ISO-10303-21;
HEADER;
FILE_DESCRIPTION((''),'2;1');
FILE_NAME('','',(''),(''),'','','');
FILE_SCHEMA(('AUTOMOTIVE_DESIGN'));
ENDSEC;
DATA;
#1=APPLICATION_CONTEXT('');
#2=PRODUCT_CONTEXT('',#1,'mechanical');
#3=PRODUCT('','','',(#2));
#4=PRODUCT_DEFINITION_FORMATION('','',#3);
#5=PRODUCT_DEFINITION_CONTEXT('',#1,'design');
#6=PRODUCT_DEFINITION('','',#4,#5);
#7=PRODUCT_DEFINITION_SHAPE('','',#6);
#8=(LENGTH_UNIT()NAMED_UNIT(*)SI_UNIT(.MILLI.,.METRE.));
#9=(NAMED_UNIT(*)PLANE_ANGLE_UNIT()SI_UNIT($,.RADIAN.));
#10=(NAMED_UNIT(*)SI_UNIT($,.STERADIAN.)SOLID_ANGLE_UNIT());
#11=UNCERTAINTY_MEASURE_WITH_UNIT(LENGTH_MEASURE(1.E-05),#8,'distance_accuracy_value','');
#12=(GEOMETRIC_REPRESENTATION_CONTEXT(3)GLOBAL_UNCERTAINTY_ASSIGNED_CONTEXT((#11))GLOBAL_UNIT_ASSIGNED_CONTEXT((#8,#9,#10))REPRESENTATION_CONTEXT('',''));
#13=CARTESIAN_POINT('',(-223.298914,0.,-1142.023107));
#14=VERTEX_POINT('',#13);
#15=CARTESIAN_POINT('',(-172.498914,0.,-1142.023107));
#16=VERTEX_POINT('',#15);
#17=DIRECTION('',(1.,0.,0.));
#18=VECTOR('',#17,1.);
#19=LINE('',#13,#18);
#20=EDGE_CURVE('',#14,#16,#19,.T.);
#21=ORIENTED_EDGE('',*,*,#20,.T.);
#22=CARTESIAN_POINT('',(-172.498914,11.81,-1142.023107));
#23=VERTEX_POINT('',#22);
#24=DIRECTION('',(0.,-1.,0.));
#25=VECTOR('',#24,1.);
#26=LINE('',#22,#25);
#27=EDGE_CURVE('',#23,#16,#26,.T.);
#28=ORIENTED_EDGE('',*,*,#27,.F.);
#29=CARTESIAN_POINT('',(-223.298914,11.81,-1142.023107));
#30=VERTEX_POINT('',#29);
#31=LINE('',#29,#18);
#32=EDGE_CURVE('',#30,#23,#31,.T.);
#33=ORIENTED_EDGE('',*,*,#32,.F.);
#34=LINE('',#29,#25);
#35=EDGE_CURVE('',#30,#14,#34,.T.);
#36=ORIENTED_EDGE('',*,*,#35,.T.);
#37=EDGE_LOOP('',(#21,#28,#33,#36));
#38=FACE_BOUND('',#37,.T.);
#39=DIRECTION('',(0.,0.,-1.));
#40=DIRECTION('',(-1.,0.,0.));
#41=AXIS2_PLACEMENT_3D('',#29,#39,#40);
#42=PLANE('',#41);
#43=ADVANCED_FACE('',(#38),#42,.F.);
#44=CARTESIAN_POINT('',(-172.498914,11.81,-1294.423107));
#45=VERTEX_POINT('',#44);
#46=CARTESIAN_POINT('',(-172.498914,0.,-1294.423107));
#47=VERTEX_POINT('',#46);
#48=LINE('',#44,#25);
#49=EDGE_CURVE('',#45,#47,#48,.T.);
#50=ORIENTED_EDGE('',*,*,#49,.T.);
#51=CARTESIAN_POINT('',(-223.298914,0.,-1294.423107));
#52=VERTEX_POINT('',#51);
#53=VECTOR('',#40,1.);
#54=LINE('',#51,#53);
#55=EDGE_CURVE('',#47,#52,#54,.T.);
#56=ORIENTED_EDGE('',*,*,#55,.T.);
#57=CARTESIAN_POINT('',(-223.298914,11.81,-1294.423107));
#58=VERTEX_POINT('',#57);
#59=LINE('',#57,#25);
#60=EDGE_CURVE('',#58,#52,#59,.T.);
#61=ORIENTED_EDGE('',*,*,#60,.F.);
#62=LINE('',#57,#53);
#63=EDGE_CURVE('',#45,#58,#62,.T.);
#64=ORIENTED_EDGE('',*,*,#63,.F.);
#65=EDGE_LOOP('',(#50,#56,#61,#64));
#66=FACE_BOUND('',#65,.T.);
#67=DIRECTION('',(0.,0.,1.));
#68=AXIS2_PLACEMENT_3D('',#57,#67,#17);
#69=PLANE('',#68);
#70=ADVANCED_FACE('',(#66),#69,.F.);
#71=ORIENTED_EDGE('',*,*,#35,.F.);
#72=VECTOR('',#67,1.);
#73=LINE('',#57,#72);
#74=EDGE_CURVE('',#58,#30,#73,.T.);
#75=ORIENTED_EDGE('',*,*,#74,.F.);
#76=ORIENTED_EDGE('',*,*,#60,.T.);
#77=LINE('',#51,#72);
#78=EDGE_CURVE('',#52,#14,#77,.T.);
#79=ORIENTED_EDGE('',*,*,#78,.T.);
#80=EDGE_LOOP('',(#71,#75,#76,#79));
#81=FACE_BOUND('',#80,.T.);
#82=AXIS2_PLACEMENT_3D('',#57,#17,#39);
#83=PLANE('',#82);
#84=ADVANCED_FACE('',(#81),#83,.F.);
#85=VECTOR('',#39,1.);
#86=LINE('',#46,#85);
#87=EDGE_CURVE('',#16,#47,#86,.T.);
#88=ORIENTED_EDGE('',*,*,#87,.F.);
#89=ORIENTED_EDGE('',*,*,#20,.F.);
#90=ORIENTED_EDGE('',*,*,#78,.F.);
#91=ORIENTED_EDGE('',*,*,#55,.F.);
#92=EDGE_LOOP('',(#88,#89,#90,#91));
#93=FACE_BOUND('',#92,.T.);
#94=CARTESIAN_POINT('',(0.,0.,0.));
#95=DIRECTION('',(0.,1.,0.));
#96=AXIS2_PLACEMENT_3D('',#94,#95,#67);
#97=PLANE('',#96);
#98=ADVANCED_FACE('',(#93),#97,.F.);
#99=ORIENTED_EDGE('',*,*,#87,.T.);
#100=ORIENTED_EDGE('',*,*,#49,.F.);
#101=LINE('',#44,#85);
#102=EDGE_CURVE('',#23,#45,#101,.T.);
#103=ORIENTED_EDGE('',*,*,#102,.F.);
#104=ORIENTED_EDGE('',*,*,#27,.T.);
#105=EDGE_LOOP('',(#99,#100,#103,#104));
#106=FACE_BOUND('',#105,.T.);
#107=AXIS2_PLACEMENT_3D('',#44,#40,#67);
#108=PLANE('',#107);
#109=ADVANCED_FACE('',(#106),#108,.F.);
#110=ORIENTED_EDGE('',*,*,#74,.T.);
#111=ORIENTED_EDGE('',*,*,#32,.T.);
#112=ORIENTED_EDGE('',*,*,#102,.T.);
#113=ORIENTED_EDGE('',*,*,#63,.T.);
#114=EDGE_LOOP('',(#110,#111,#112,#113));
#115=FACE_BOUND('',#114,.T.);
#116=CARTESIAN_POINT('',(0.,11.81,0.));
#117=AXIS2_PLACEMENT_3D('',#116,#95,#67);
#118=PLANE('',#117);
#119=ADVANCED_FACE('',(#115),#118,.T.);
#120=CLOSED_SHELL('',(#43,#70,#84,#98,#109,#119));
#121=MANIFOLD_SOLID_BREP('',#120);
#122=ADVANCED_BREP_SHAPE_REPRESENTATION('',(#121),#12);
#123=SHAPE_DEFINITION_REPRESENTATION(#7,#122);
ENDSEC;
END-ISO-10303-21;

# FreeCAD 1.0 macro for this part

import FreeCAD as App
import Part
import Sketcher
Q = App.Units.Quantity


def add_polygon(sketch, points):
    """Adds a closed chain of lines whose ends are joined by coincident constraints."""
    first, n = sketch.GeometryCount, len(points)
    for a, b in zip(points, points[1:] + points[:1]):
        sketch.addGeometry(Part.LineSegment(App.Vector(*a, 0), App.Vector(*b, 0)), False)
    for i in range(n):
        sketch.addConstraint(Sketcher.Constraint("Coincident", first + i, 2, first + (i + 1) % n, 1))

doc = App.newDocument("Part")
params = doc.addObject("Spreadsheet::Sheet", "Params")
for row, (alias, value) in enumerate([
    ("sketch1_width", "2 in"),
    ("sketch1_height", "6 in"),
    ("pad1_length", "11.81 mm"),
], start=1):
    params.set(f"A{row}", alias)
    params.set(f"B{row}", "=" + value)
    params.setAlias(f"B{row}", alias)

body = doc.addObject("PartDesign::Body", "Body")

# Sketch on XZ plane
sketch1 = doc.addObject("Sketcher::SketchObject", "Sketch")
body.addObject(sketch1)
sketch1.AttachmentSupport = (doc.XZ_Plane, [""])
sketch1.MapMode = "FlatFace"
add_polygon(sketch1, [(-223, -1294), (-223, -1142), (-172, -1142), (-172, -1294)])  # lines 0-3
sketch1.addConstraint([
    Sketcher.Constraint("Vertical", 0),
    Sketcher.Constraint("Horizontal", 1),
    Sketcher.Constraint("Vertical", 2),
    Sketcher.Constraint("Horizontal", 3),
    Sketcher.Constraint("DistanceX", 1, 1, 1, 2, Q("2 in")),
    Sketcher.Constraint("DistanceY", 0, 1, 0, 2, Q("6 in")),
    Sketcher.Constraint("DistanceX", 0, 2, -1, 1, 223.298914),
    Sketcher.Constraint("DistanceY", 0, 2, -1, 1, 1142.023107),
])
sketch1.setExpression("Constraints[8]", "Params.sketch1_width")
sketch1.setExpression("Constraints[9]", "Params.sketch1_height")
pad1 = doc.addObject("PartDesign::Pad", "Pad")
body.addObject(pad1)
pad1.Profile = sketch1
pad1.setExpression("Length", "Params.pad1_length")
pad1.Reversed = True

doc.recompute()
